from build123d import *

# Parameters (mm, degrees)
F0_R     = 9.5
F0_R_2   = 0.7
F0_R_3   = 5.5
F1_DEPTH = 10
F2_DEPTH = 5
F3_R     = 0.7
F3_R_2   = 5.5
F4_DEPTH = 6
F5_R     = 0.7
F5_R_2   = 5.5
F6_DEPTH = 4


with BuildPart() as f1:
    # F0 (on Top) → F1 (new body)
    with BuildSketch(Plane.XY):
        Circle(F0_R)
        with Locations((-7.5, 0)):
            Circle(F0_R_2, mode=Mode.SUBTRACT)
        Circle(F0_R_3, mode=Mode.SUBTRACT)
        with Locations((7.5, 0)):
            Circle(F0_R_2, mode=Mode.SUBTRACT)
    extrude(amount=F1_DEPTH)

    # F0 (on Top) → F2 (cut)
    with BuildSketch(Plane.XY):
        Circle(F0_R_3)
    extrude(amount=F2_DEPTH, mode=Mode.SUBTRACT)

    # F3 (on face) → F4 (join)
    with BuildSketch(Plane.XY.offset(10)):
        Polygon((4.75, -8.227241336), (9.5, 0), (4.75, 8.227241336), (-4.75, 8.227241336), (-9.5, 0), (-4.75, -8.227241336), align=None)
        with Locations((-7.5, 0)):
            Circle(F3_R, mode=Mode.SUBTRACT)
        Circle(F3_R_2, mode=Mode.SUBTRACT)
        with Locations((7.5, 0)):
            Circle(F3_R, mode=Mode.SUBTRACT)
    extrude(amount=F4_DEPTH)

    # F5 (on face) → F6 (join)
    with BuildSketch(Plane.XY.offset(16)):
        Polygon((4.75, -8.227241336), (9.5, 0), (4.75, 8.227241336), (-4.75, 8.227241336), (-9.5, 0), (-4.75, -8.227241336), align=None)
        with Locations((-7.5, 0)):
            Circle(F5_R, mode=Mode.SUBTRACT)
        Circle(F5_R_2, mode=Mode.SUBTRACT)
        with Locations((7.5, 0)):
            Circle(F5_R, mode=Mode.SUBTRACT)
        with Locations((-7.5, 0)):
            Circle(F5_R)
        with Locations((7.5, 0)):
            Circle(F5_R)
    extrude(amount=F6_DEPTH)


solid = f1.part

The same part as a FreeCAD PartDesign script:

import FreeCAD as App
import Part
import Sketcher
from FreeCAD import Vector
Q = App.Units.Quantity

doc = App.newDocument("Part")
params = doc.addObject("Spreadsheet::Sheet", "Params")
for row, (alias, value) in enumerate([
    ("sketch1_diameter", "19 mm"),
    ("sketch1_diameter2", "11 mm"),
    ("sketch1_diameter3", "1.4 mm"),
    ("pad1_length", "10 mm"),
    ("sketch2_diameter", "11 mm"),
    ("pocket1_length", "5 mm"),
    ("sketch3_diameter", "11 mm"),
    ("sketch3_diameter2", "1.4 mm"),
    ("sketch3_width", "9.5 mm"),
    ("pad2_length", "6 mm"),
    ("sketch4_diameter", "11 mm"),
    ("sketch4_width", "9.5 mm"),
    ("pad3_length", "4 mm"),
], start=1):
    params.set(f"A{row}", alias)
    params.set(f"B{row}", "=" + value)
    params.setAlias(f"B{row}", alias)

body = doc.addObject("PartDesign::Body", "Body")

# Sketch on XY plane
sketch1 = body.newObject("Sketcher::SketchObject", "Sketch")
sketch1.AttachmentSupport = (doc.getObject("XY_Plane"), [""])
sketch1.MapMode = "FlatFace"
sketch1.addGeometry(Part.Circle(Vector(0, 0, 0), Vector(0, 0, 1), 9.5), False)
sketch1.addGeometry(Part.Circle(Vector(-7.5, 0, 0), Vector(0, 0, 1), 0.7), False)
sketch1.addGeometry(Part.Circle(Vector(0, 0, 0), Vector(0, 0, 1), 5.5), False)
sketch1.addGeometry(Part.Circle(Vector(7.5, 0, 0), Vector(0, 0, 1), 0.7), False)
sketch1.addConstraint(Sketcher.Constraint("Coincident", 0, 3, -1, 1))
sketch1.addConstraint(Sketcher.Constraint("Coincident", 2, 3, -1, 1))
sketch1.addConstraint(Sketcher.Constraint("Equal", 1, 3))
sketch1.addConstraint(Sketcher.Constraint("Symmetric", 1, 3, 3, 3, -1, 1))
sketch1.addConstraint(Sketcher.Constraint("PointOnObject", 1, 3, -1))
sketch1.addConstraint(Sketcher.Constraint("Diameter", 0, Q("19 mm")))
sketch1.addConstraint(Sketcher.Constraint("Diameter", 2, Q("11 mm")))
sketch1.addConstraint(Sketcher.Constraint("Diameter", 1, Q("1.4 mm")))
sketch1.addConstraint(Sketcher.Constraint("DistanceX", 1, 3, 3, 3, Q("15 mm")))
sketch1.setExpression("Constraints[5]", "Params.sketch1_diameter")
sketch1.setExpression("Constraints[6]", "Params.sketch1_diameter2")
sketch1.setExpression("Constraints[7]", "Params.sketch1_diameter3")
pad1 = body.newObject("PartDesign::Pad", "Pad")
pad1.Profile = sketch1
pad1.setExpression("Length", "Params.pad1_length")

# Sketch on XY plane
sketch2 = body.newObject("Sketcher::SketchObject", "Sketch001")
sketch2.AttachmentSupport = (doc.getObject("XY_Plane"), [""])
sketch2.MapMode = "FlatFace"
sketch2.addGeometry(Part.Circle(Vector(0, 0, 0), Vector(0, 0, 1), 6), False)
sketch2.addConstraint(Sketcher.Constraint("Coincident", 0, 3, -1, 1))
sketch2.addConstraint(Sketcher.Constraint("Diameter", 0, Q("11 mm")))
sketch2.setExpression("Constraints[1]", "Params.sketch2_diameter")
pocket1 = body.newObject("PartDesign::Pocket", "Pocket")
pocket1.Profile = sketch2
pocket1.setExpression("Length", "Params.pocket1_length")
pocket1.Reversed = True

# Sketch on XY plane
sketch3 = body.newObject("Sketcher::SketchObject", "Sketch002")
sketch3.AttachmentSupport = (doc.getObject("XY_Plane"), [""])
sketch3.MapMode = "FlatFace"
sketch3.AttachmentOffset = App.Placement(Vector(0, 0, 10), App.Rotation())
sketch3.addGeometry(Part.LineSegment(Vector(4.8, -8.2, 0), Vector(9.5, 0, 0)), False)
sketch3.addGeometry(Part.LineSegment(Vector(9.5, 0, 0), Vector(4.8, 8.2, 0)), False)
sketch3.addGeometry(Part.LineSegment(Vector(4.8, 8.2, 0), Vector(-4.8, 8.2, 0)), False)
sketch3.addGeometry(Part.LineSegment(Vector(-4.8, 8.2, 0), Vector(-9.5, 0, 0)), False)
sketch3.addGeometry(Part.LineSegment(Vector(-9.5, 0, 0), Vector(-4.8, -8.2, 0)), False)
sketch3.addGeometry(Part.LineSegment(Vector(-4.8, -8.2, 0), Vector(4.8, -8.2, 0)), False)
sketch3.addGeometry(Part.Circle(Vector(-7.5, 0, 0), Vector(0, 0, 1), 0.7), False)
sketch3.addGeometry(Part.Circle(Vector(0, 0, 0), Vector(0, 0, 1), 5.5), False)
sketch3.addGeometry(Part.Circle(Vector(7.5, 0, 0), Vector(0, 0, 1), 0.7), False)
sketch3.addConstraint(Sketcher.Constraint("Coincident", 0, 2, 1, 1))
sketch3.addConstraint(Sketcher.Constraint("Coincident", 1, 2, 2, 1))
sketch3.addConstraint(Sketcher.Constraint("Coincident", 2, 2, 3, 1))
sketch3.addConstraint(Sketcher.Constraint("Coincident", 3, 2, 4, 1))
sketch3.addConstraint(Sketcher.Constraint("Coincident", 4, 2, 5, 1))
sketch3.addConstraint(Sketcher.Constraint("Coincident", 5, 2, 0, 1))
sketch3.addConstraint(Sketcher.Constraint("Horizontal", 2))
sketch3.addConstraint(Sketcher.Constraint("Horizontal", 5))
sketch3.addConstraint(Sketcher.Constraint("Coincident", 7, 3, -1, 1))
sketch3.addConstraint(Sketcher.Constraint("Equal", 6, 8))
sketch3.addConstraint(Sketcher.Constraint("Symmetric", 6, 3, 8, 3, -1, 1))
sketch3.addConstraint(Sketcher.Constraint("Symmetric", 0, 2, 3, 2, -1, 1))
sketch3.addConstraint(Sketcher.Constraint("Symmetric", 1, 2, 4, 2, -1, 1))
sketch3.addConstraint(Sketcher.Constraint("PointOnObject", 6, 3, -1))
sketch3.addConstraint(Sketcher.Constraint("PointOnObject", 0, 2, -1))
sketch3.addConstraint(Sketcher.Constraint("Parallel", 0, 3))
sketch3.addConstraint(Sketcher.Constraint("Vertical", 2, 2, 4, 2))
sketch3.addConstraint(Sketcher.Constraint("Diameter", 7, Q("11 mm")))
sketch3.addConstraint(Sketcher.Constraint("Diameter", 6, Q("1.4 mm")))
sketch3.addConstraint(Sketcher.Constraint("Angle", 0, Q("60 deg")))
sketch3.addConstraint(Sketcher.Constraint("DistanceX", 2, 2, 2, 1, Q("9.5 mm")))
sketch3.addConstraint(Sketcher.Constraint("DistanceX", 6, 3, 8, 3, Q("15 mm")))
sketch3.addConstraint(Sketcher.Constraint("DistanceX", 8, 3, 0, 2, Q("2 mm")))
sketch3.setExpression("Constraints[17]", "Params.sketch3_diameter")
sketch3.setExpression("Constraints[18]", "Params.sketch3_diameter2")
sketch3.setExpression("Constraints[20]", "Params.sketch3_width")
pad2 = body.newObject("PartDesign::Pad", "Pad001")
pad2.Profile = sketch3
pad2.setExpression("Length", "Params.pad2_length")

# Sketch on XY plane
sketch4 = body.newObject("Sketcher::SketchObject", "Sketch003")
sketch4.AttachmentSupport = (doc.getObject("XY_Plane"), [""])
sketch4.MapMode = "FlatFace"
sketch4.AttachmentOffset = App.Placement(Vector(0, 0, 16), App.Rotation())
sketch4.addGeometry(Part.LineSegment(Vector(5, -8, 0), Vector(10, 0, 0)), False)
sketch4.addGeometry(Part.LineSegment(Vector(10, 0, 0), Vector(5, 8, 0)), False)
sketch4.addGeometry(Part.LineSegment(Vector(5, 8, 0), Vector(-5, 8, 0)), False)
sketch4.addGeometry(Part.LineSegment(Vector(-5, 8, 0), Vector(-10, 0, 0)), False)
sketch4.addGeometry(Part.LineSegment(Vector(-10, 0, 0), Vector(-5, -8, 0)), False)
sketch4.addGeometry(Part.LineSegment(Vector(-5, -8, 0), Vector(5, -8, 0)), False)
sketch4.addGeometry(Part.Circle(Vector(0, 0, 0), Vector(0, 0, 1), 6), False)
sketch4.addConstraint(Sketcher.Constraint("Coincident", 0, 2, 1, 1))
sketch4.addConstraint(Sketcher.Constraint("Coincident", 1, 2, 2, 1))
sketch4.addConstraint(Sketcher.Constraint("Coincident", 2, 2, 3, 1))
sketch4.addConstraint(Sketcher.Constraint("Coincident", 3, 2, 4, 1))
sketch4.addConstraint(Sketcher.Constraint("Coincident", 4, 2, 5, 1))
sketch4.addConstraint(Sketcher.Constraint("Coincident", 5, 2, 0, 1))
sketch4.addConstraint(Sketcher.Constraint("Horizontal", 2))
sketch4.addConstraint(Sketcher.Constraint("Horizontal", 5))
sketch4.addConstraint(Sketcher.Constraint("Coincident", 6, 3, -1, 1))
sketch4.addConstraint(Sketcher.Constraint("Symmetric", 0, 2, 3, 2, -1, 1))
sketch4.addConstraint(Sketcher.Constraint("Symmetric", 1, 2, 4, 2, -1, 1))
sketch4.addConstraint(Sketcher.Constraint("PointOnObject", 0, 2, -1))
sketch4.addConstraint(Sketcher.Constraint("Parallel", 0, 3))
sketch4.addConstraint(Sketcher.Constraint("Vertical", 2, 2, 4, 2))
sketch4.addConstraint(Sketcher.Constraint("Diameter", 6, Q("11 mm")))
sketch4.addConstraint(Sketcher.Constraint("Angle", 0, Q("60 deg")))
sketch4.addConstraint(Sketcher.Constraint("DistanceX", 2, 2, 2, 1, Q("9.5 mm")))
sketch4.addConstraint(Sketcher.Constraint("DistanceX", 3, 2, 0, 2, Q("19 mm")))
sketch4.setExpression("Constraints[14]", "Params.sketch4_diameter")
sketch4.setExpression("Constraints[16]", "Params.sketch4_width")
pad3 = body.newObject("PartDesign::Pad", "Pad002")
pad3.Profile = sketch4
pad3.setExpression("Length", "Params.pad3_length")

doc.recompute()
